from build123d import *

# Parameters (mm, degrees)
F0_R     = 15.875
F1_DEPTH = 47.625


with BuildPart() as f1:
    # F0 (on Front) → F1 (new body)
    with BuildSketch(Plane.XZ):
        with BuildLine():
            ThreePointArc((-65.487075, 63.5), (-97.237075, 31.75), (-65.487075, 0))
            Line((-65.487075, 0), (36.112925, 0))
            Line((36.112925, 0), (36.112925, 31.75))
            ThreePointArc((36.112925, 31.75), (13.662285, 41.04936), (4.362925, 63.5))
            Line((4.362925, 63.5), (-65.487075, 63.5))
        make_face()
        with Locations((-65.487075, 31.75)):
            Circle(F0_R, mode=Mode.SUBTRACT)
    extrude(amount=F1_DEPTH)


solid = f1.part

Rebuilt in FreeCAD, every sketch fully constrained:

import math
import FreeCAD as App
import Part
import Sketcher
from FreeCAD import Vector
Q = App.Units.Quantity

doc = App.newDocument("Part")
params = doc.addObject("Spreadsheet::Sheet", "Params")
for row, (alias, value) in enumerate([
    ("sketch1_diameter", "1.25 in"),
    ("sketch1_width", "4 in"),
    ("sketch1_radius", "1.25 in"),
    ("pad1_length", "1.875 in"),
], start=1):
    params.set(f"A{row}", alias)
    params.set(f"B{row}", "=" + value)
    params.setAlias(f"B{row}", alias)

body = doc.addObject("PartDesign::Body", "Body")

# Sketch on XZ plane
sketch1 = doc.addObject("Sketcher::SketchObject", "Sketch")
body.addObject(sketch1)
sketch1.AttachmentSupport = (doc.XZ_Plane, [""])
sketch1.MapMode = "FlatFace"
sketch1.addGeometry([
    Part.ArcOfCircle(Part.Circle(Vector(-65.487075, 31.75, 0), Vector(0, 0, 1), 31.75), math.radians(90), math.radians(270)),  # 0
    Part.LineSegment(Vector(-65.487075, 0, 0), Vector(36.112925, 0, 0)),  # 1
    Part.LineSegment(Vector(36.112925, 0, 0), Vector(36.112925, 31.75, 0)),  # 2
    Part.ArcOfCircle(Part.Circle(Vector(36.112926, 63.500001, 0), Vector(0, 0, 1), 31.750001), math.radians(-179.999998), math.radians(-90.000002)),  # 3
    Part.LineSegment(Vector(4.362925, 63.5, 0), Vector(-65.487075, 63.5, 0)),  # 4
    Part.Circle(Vector(-65.487075, 31.75, 0), Vector(0, 0, 1), 15.875),  # 5
], False)
sketch1.addConstraint([
    Sketcher.Constraint("Tangent", 0, 2, 1, 1),
    Sketcher.Constraint("Coincident", 1, 2, 2, 1),
    Sketcher.Constraint("Coincident", 2, 2, 3, 2),
    Sketcher.Constraint("Coincident", 3, 1, 4, 1),
    Sketcher.Constraint("Tangent", 4, 2, 0, 1),
    Sketcher.Constraint("Horizontal", 1),
    Sketcher.Constraint("Vertical", 2),
    Sketcher.Constraint("Horizontal", 4),
    Sketcher.Constraint("Coincident", 5, 3, 0, 3),
    Sketcher.Constraint("Equal", 0, 3),
    Sketcher.Constraint("PointOnObject", 0, 2, -1),
    Sketcher.Constraint("Horizontal", 5, 3, 2, 2),
    Sketcher.Constraint("Vertical", 3, 3, 1, 2),
    Sketcher.Constraint("Diameter", 5, Q("1.25 in")),
    Sketcher.Constraint("DistanceX", 1, 1, 1, 2, Q("4 in")),
    Sketcher.Constraint("Radius", 0, Q("1.25 in")),
    Sketcher.Constraint("DistanceX", 0, 3, -1, 1, Q("65.487075 mm")),
])
sketch1.setExpression("Constraints[13]", "Params.sketch1_diameter")
sketch1.setExpression("Constraints[14]", "Params.sketch1_width")
sketch1.setExpression("Constraints[15]", "Params.sketch1_radius")
pad1 = doc.addObject("PartDesign::Pad", "Pad")
body.addObject(pad1)
pad1.Profile = sketch1
pad1.setExpression("Length", "Params.pad1_length")

doc.recompute()
